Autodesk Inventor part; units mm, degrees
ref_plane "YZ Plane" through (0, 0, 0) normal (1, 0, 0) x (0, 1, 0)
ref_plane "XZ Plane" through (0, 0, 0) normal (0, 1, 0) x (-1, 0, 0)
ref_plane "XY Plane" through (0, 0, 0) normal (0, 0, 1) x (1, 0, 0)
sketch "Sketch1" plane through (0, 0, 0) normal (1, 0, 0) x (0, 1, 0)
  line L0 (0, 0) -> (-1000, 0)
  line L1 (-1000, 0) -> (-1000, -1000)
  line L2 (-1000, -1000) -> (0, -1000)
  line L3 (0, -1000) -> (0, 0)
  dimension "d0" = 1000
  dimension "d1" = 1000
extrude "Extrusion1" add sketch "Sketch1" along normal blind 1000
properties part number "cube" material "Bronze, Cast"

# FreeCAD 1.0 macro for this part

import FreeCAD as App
import Part
import Sketcher
from FreeCAD import Vector

doc = App.newDocument("Part")
body = doc.addObject("PartDesign::Body", "Body")

# Sketch on YZ plane
sketch1 = body.newObject("Sketcher::SketchObject", "Sketch")
sketch1.AttachmentSupport = (doc.getObject("YZ_Plane"), [""])
sketch1.MapMode = "FlatFace"
sketch1.addGeometry(Part.LineSegment(Vector(0, -1000, 0), Vector(0, 0, 0)), False)
sketch1.addGeometry(Part.LineSegment(Vector(0, 0, 0), Vector(-1000, 0, 0)), False)
sketch1.addGeometry(Part.LineSegment(Vector(-1000, 0, 0), Vector(-1000, -1000, 0)), False)
sketch1.addGeometry(Part.LineSegment(Vector(-1000, -1000, 0), Vector(0, -1000, 0)), False)
sketch1.addConstraint(Sketcher.Constraint("Coincident", 0, 2, 1, 1))
sketch1.addConstraint(Sketcher.Constraint("Coincident", 1, 2, 2, 1))
sketch1.addConstraint(Sketcher.Constraint("Coincident", 2, 2, 3, 1))
sketch1.addConstraint(Sketcher.Constraint("Coincident", 3, 2, 0, 1))
sketch1.addConstraint(Sketcher.Constraint("Vertical", 0))
sketch1.addConstraint(Sketcher.Constraint("Horizontal", 1))
sketch1.addConstraint(Sketcher.Constraint("Vertical", 2))
sketch1.addConstraint(Sketcher.Constraint("Horizontal", 3))
sketch1.addConstraint(Sketcher.Constraint("Coincident", 0, 2, -1, 1))
sketch1.addConstraint(Sketcher.Constraint("Equal", 3, 0))
sketch1.addConstraint(Sketcher.Constraint("DistanceX", 1, 2, 1, 1, 1000.0))
pad1 = body.newObject("PartDesign::Pad", "Pad")
pad1.Profile = sketch1
pad1.Length = 1000

doc.recompute()
